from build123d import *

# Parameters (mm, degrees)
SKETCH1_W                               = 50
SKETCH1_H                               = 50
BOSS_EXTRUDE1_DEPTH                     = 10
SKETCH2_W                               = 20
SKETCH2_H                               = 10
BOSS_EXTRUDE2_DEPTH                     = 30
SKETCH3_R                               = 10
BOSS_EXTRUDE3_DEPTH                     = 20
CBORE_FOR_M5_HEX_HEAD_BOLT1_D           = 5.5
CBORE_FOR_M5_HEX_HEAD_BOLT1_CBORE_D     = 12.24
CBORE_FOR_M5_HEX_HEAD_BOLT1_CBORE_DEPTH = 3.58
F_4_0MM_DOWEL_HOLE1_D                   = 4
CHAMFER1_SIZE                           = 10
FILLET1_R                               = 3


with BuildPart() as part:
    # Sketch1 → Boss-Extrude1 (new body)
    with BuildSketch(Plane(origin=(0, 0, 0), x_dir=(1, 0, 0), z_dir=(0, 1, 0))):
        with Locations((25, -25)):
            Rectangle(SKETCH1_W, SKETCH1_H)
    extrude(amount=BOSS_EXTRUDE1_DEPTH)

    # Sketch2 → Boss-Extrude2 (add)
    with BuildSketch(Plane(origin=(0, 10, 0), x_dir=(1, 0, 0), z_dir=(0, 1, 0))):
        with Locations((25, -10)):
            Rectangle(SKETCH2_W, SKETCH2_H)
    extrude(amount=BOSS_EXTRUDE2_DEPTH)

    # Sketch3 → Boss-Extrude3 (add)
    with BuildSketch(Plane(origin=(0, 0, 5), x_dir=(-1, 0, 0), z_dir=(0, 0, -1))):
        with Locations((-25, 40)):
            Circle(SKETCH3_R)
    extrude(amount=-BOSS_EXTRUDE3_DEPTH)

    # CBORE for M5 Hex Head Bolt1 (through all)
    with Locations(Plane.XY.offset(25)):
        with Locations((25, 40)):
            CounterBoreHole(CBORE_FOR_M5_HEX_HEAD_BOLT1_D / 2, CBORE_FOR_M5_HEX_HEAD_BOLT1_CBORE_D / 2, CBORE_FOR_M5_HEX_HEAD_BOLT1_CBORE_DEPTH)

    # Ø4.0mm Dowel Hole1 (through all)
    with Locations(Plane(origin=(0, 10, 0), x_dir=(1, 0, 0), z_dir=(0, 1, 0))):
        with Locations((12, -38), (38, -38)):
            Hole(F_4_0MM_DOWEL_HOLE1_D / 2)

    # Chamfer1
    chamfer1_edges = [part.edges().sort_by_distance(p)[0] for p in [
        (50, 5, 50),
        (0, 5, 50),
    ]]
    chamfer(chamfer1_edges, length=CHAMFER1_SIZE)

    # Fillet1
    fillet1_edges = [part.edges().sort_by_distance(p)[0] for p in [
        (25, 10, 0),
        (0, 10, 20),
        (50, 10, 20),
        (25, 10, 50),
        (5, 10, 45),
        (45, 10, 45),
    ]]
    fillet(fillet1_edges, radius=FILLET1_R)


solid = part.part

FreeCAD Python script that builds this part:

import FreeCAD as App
import Part
import Sketcher
from FreeCAD import Vector
Q = App.Units.Quantity


def edges_at(feature, points):
    """Names of the edges that pass closest to the given points."""
    edges = feature.Shape.Edges
    near = lambda p: min(range(len(edges)), key=lambda i: edges[i].distToShape(Part.Vertex(*p))[0])
    return sorted({f"Edge{near(p) + 1}" for p in points})


def add_polygon(sketch, points):
    """Adds a closed chain of lines whose ends are joined by coincident constraints."""
    first, n = sketch.GeometryCount, len(points)
    for a, b in zip(points, points[1:] + points[:1]):
        sketch.addGeometry(Part.LineSegment(App.Vector(*a, 0), App.Vector(*b, 0)), False)
    for i in range(n):
        sketch.addConstraint(Sketcher.Constraint("Coincident", first + i, 2, first + (i + 1) % n, 1))

doc = App.newDocument("Part")
body = doc.addObject("PartDesign::Body", "Body")

sketch1 = body.newObject("Sketcher::SketchObject", "Sketch")
sketch1.AttachmentSupport = (doc.getObject("XZ_Plane"), [""])
sketch1.MapMode = "FlatFace"
add_polygon(sketch1, [(0, 0), (0, 50), (50, 50), (50, 0)])
sketch1.addConstraint(Sketcher.Constraint("Vertical", 0))
sketch1.addConstraint(Sketcher.Constraint("Horizontal", 1))
sketch1.addConstraint(Sketcher.Constraint("Vertical", 2))
sketch1.addConstraint(Sketcher.Constraint("Horizontal", 3))
sketch1.addConstraint(Sketcher.Constraint("Coincident", 3, 2, -1, 1))
sketch1.addConstraint(Sketcher.Constraint("Equal", 3, 0))
sketch1.addConstraint(Sketcher.Constraint("DistanceX", 1, 1, 1, 2, Q("50 mm")))
pad1 = body.newObject("PartDesign::Pad", "Pad")
pad1.Profile = sketch1
pad1.Length = 10
pad1.Reversed = True

sketch2 = body.newObject("Sketcher::SketchObject", "Sketch001")
sketch2.AttachmentSupport = (doc.getObject("XZ_Plane"), [""])
sketch2.MapMode = "FlatFace"
sketch2.AttachmentOffset = App.Placement(Vector(0, 0, -10), App.Rotation())
add_polygon(sketch2, [(15, 5), (15, 15), (35, 15), (35, 5)])
sketch2.addConstraint(Sketcher.Constraint("Vertical", 0))
sketch2.addConstraint(Sketcher.Constraint("Horizontal", 1))
sketch2.addConstraint(Sketcher.Constraint("Vertical", 2))
sketch2.addConstraint(Sketcher.Constraint("Horizontal", 3))
sketch2.addConstraint(Sketcher.Constraint("DistanceX", 1, 1, 1, 2, Q("20 mm")))
sketch2.addConstraint(Sketcher.Constraint("DistanceY", 0, 1, 0, 2, Q("10 mm")))
sketch2.addConstraint(Sketcher.Constraint("DistanceX", -1, 1, 0, 2, Q("15 mm")))
sketch2.addConstraint(Sketcher.Constraint("DistanceY", -1, 1, 0, 2, Q("15 mm")))
pad2 = body.newObject("PartDesign::Pad", "Pad001")
pad2.Profile = sketch2
pad2.Length = 30
pad2.Reversed = True

sketch3 = body.newObject("Sketcher::SketchObject", "Sketch002")
sketch3.AttachmentSupport = (doc.getObject("XY_Plane"), [""])
sketch3.MapMode = "FlatFace"
sketch3.AttachmentOffset = App.Placement(Vector(0, 0, 5), App.Rotation())
sketch3.addGeometry(Part.Circle(Vector(25, 40, 0), Vector(0, 0, 1), 10), False)
sketch3.addConstraint(Sketcher.Constraint("Diameter", 0, Q("20 mm")))
sketch3.addConstraint(Sketcher.Constraint("DistanceX", -1, 1, 0, 3, Q("25 mm")))
sketch3.addConstraint(Sketcher.Constraint("DistanceY", -1, 1, 0, 3, Q("40 mm")))
pad3 = body.newObject("PartDesign::Pad", "Pad002")
pad3.Profile = sketch3
pad3.Length = 20

sketch4 = body.newObject("Sketcher::SketchObject", "Sketch003")
sketch4.AttachmentSupport = (doc.getObject("XY_Plane"), [""])
sketch4.MapMode = "FlatFace"
sketch4.AttachmentOffset = App.Placement(Vector(0, 0, 25), App.Rotation())
sketch4.addGeometry(Part.Circle(Vector(25, 40, 0), Vector(0, 0, 1), 2.75), False)
sketch4.addConstraint(Sketcher.Constraint("Diameter", 0, Q("5.5 mm")))
sketch4.addConstraint(Sketcher.Constraint("DistanceX", -1, 1, 0, 3, Q("25 mm")))
sketch4.addConstraint(Sketcher.Constraint("DistanceY", -1, 1, 0, 3, Q("40 mm")))
doc.recompute()
hole = body.newObject("PartDesign::Hole", "Hole")
hole.Profile = sketch4
hole.ThreadType = "None"
hole.Diameter = 5.5
hole.DepthType = "ThroughAll"
hole.HoleCutType = "Counterbore"
hole.HoleCutDiameter = 12.24
hole.HoleCutDepth = 3.58

sketch5 = body.newObject("Sketcher::SketchObject", "Sketch004")
sketch5.AttachmentSupport = (doc.getObject("XZ_Plane"), [""])
sketch5.MapMode = "FlatFace"
sketch5.AttachmentOffset = App.Placement(Vector(0, 0, -10), App.Rotation())
sketch5.addGeometry(Part.Circle(Vector(12, 38, 0), Vector(0, 0, 1), 2), False)
sketch5.addGeometry(Part.Circle(Vector(38, 38, 0), Vector(0, 0, 1), 2), False)
sketch5.addConstraint(Sketcher.Constraint("Equal", 0, 1))
sketch5.addConstraint(Sketcher.Constraint("Horizontal", 0, 3, 1, 3))
sketch5.addConstraint(Sketcher.Constraint("Diameter", 0, Q("4 mm")))
sketch5.addConstraint(Sketcher.Constraint("DistanceX", -1, 1, 0, 3, Q("12 mm")))
sketch5.addConstraint(Sketcher.Constraint("DistanceY", -1, 1, 0, 3, Q("38 mm")))
sketch5.addConstraint(Sketcher.Constraint("DistanceX", -1, 1, 1, 3, Q("38 mm")))
doc.recompute()
hole2 = body.newObject("PartDesign::Hole", "Hole001")
hole2.Profile = sketch5
hole2.ThreadType = "None"
hole2.Diameter = 4
hole2.DepthType = "ThroughAll"
hole2.Reversed = True
doc.recompute()

chamfer = body.newObject("PartDesign::Chamfer", "Chamfer")
chamfer.Base = (hole2, edges_at(hole2, [(50, 5, 50), (0, 5, 50)]))
chamfer.Size = 10
doc.recompute()

fillet = body.newObject("PartDesign::Fillet", "Fillet")
fillet.Base = (chamfer, edges_at(chamfer, [
    (25, 10, 0),
    (0, 10, 20),
    (50, 10, 20),
    (25, 10, 50),
    (5, 10, 45),
    (45, 10, 45),
]))
fillet.Radius = 3

doc.recompute()
